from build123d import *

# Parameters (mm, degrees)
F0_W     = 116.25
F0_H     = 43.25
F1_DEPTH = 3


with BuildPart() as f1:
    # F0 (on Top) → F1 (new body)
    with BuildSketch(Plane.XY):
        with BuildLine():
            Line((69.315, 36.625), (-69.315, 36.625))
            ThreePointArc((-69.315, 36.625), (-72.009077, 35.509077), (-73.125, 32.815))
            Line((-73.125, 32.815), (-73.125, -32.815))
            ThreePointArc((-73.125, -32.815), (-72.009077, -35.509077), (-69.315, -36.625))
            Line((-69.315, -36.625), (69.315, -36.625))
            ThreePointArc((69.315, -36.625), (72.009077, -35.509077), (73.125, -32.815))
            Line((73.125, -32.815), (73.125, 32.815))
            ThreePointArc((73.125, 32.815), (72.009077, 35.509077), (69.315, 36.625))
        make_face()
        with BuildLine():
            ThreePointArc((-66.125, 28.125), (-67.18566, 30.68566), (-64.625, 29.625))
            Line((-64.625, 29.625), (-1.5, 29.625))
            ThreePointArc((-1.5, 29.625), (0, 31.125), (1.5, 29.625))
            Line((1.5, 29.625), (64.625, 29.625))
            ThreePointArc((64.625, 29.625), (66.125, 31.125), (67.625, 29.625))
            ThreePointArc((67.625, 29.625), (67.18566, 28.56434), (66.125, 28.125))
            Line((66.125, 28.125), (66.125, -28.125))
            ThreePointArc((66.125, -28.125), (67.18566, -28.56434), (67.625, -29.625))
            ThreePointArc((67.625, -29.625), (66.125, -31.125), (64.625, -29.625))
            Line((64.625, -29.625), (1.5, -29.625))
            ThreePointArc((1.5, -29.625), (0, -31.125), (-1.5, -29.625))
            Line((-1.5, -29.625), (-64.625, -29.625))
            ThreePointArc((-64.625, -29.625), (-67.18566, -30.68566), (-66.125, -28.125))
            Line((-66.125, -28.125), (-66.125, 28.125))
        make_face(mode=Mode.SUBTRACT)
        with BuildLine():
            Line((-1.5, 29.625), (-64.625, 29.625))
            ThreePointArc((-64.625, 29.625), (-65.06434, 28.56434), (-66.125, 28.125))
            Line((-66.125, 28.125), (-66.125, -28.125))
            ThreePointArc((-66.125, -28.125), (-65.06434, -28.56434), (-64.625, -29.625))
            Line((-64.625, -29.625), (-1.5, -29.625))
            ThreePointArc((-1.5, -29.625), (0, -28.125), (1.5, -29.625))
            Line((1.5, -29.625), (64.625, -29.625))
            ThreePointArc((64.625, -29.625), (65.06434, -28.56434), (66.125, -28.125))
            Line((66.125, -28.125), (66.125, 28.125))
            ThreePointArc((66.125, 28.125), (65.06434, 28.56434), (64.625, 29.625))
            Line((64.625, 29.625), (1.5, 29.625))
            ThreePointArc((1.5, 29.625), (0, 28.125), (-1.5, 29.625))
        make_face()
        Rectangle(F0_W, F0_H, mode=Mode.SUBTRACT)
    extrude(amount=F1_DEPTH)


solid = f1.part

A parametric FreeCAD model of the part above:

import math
import FreeCAD as App
import Part
import Sketcher
Q = App.Units.Quantity


def add_polygon(sketch, points):
    """Adds a closed chain of lines whose ends are joined by coincident constraints."""
    first, n = sketch.GeometryCount, len(points)
    for a, b in zip(points, points[1:] + points[:1]):
        sketch.addGeometry(Part.LineSegment(App.Vector(*a, 0), App.Vector(*b, 0)), False)
    for i in range(n):
        sketch.addConstraint(Sketcher.Constraint("Coincident", first + i, 2, first + (i + 1) % n, 1))

doc = App.newDocument("Part")
body = doc.addObject("PartDesign::Body", "Body")

# Sketch on XY plane
sketch1 = doc.addObject("Sketcher::SketchObject", "Sketch")
body.addObject(sketch1)
sketch1.AttachmentSupport = (doc.XY_Plane, [""])
sketch1.MapMode = "FlatFace"
sketch1.addGeometry(Part.LineSegment(App.Vector(69.3, 36.6, 0), App.Vector(-69.3, 36.6, 0)), False)  # 0
sketch1.addGeometry(Part.ArcOfCircle(Part.Circle(App.Vector(-69.3, 32.8, 0), App.Vector(0, 0, 1), 3.8), math.radians(90), math.radians(180)), False)  # 1
sketch1.addGeometry(Part.LineSegment(App.Vector(-73.1, 32.8, 0), App.Vector(-73.1, -32.8, 0)), False)  # 2
sketch1.addGeometry(Part.ArcOfCircle(Part.Circle(App.Vector(-69.3, -32.8, 0), App.Vector(0, 0, 1), 3.8), math.radians(180), math.radians(270)), False)  # 3
sketch1.addGeometry(Part.LineSegment(App.Vector(-69.3, -36.6, 0), App.Vector(69.3, -36.6, 0)), False)  # 4
sketch1.addGeometry(Part.ArcOfCircle(Part.Circle(App.Vector(69.3, -32.8, 0), App.Vector(0, 0, 1), 3.8), math.radians(-90), math.radians(0)), False)  # 5
sketch1.addGeometry(Part.LineSegment(App.Vector(73.1, -32.8, 0), App.Vector(73.1, 32.8, 0)), False)  # 6
sketch1.addGeometry(Part.ArcOfCircle(Part.Circle(App.Vector(69.3, 32.8, 0), App.Vector(0, 0, 1), 3.8), math.radians(0), math.radians(90)), False)  # 7
sketch1.addGeometry(Part.ArcOfCircle(Part.Circle(App.Vector(-66.1, -29.6, 0), App.Vector(0, 0, 1), 1.5), math.radians(90), math.radians(360)), False)  # 8
sketch1.addGeometry(Part.ArcOfCircle(Part.Circle(App.Vector(-66.1, -29.6, 0), App.Vector(0, 0, 1), 1.5), math.radians(0), math.radians(90)), False)  # 9
sketch1.addGeometry(Part.Circle(App.Vector(0, -29.6, 0), App.Vector(0, 0, 1), 1.5), False)  # 10
add_polygon(sketch1, [(58.1, -21.6), (-58.1, -21.6), (-58.1, 21.6), (58.1, 21.6)])  # lines 11-14
sketch1.addGeometry(Part.ArcOfCircle(Part.Circle(App.Vector(66.1, -29.6, 0), App.Vector(0, 0, 1), 1.5), math.radians(180), math.radians(360)), False)  # 15
sketch1.addGeometry(Part.ArcOfCircle(Part.Circle(App.Vector(66.1, -29.6, 0), App.Vector(0, 0, 1), 1.5), math.radians(90), math.radians(180)), False)  # 16
sketch1.addGeometry(Part.ArcOfCircle(Part.Circle(App.Vector(66.1, -29.6, 0), App.Vector(0, 0, 1), 1.5), math.radians(0), math.radians(90)), False)  # 17
sketch1.addGeometry(Part.ArcOfCircle(Part.Circle(App.Vector(-66.1, 29.6, 0), App.Vector(0, 0, 1), 1.5), math.radians(0), math.radians(270)), False)  # 18
sketch1.addGeometry(Part.ArcOfCircle(Part.Circle(App.Vector(-66.1, 29.6, 0), App.Vector(0, 0, 1), 1.5), math.radians(-90), math.radians(0)), False)  # 19
sketch1.addGeometry(Part.Circle(App.Vector(0, 29.6, 0), App.Vector(0, 0, 1), 1.5), False)  # 20
sketch1.addGeometry(Part.ArcOfCircle(Part.Circle(App.Vector(66.1, 29.6, 0), App.Vector(0, 0, 1), 1.5), math.radians(-90), math.radians(0)), False)  # 21
sketch1.addGeometry(Part.ArcOfCircle(Part.Circle(App.Vector(66.1, 29.6, 0), App.Vector(0, 0, 1), 1.5), math.radians(-180), math.radians(-90)), False)  # 22
sketch1.addGeometry(Part.ArcOfCircle(Part.Circle(App.Vector(66.1, 29.6, 0), App.Vector(0, 0, 1), 1.5), math.radians(0), math.radians(180)), False)  # 23
sketch1.addConstraint(Sketcher.Constraint("Tangent", 0, 2, 1, 1))
sketch1.addConstraint(Sketcher.Constraint("Tangent", 1, 2, 2, 1))
sketch1.addConstraint(Sketcher.Constraint("Tangent", 2, 2, 3, 1))
sketch1.addConstraint(Sketcher.Constraint("Tangent", 3, 2, 4, 1))
sketch1.addConstraint(Sketcher.Constraint("Tangent", 4, 2, 5, 1))
sketch1.addConstraint(Sketcher.Constraint("Tangent", 5, 2, 6, 1))
sketch1.addConstraint(Sketcher.Constraint("Tangent", 6, 2, 7, 1))
sketch1.addConstraint(Sketcher.Constraint("Tangent", 7, 2, 0, 1))
sketch1.addConstraint(Sketcher.Constraint("Tangent", 8, 1, 9, 2))
sketch1.addConstraint(Sketcher.Constraint("Coincident", 9, 1, 8, 2))
sketch1.addConstraint(Sketcher.Constraint("Tangent", 15, 1, 16, 2))
sketch1.addConstraint(Sketcher.Constraint("Tangent", 16, 1, 17, 2))
sketch1.addConstraint(Sketcher.Constraint("Tangent", 17, 1, 15, 2))
sketch1.addConstraint(Sketcher.Constraint("Tangent", 18, 1, 19, 2))
sketch1.addConstraint(Sketcher.Constraint("Coincident", 19, 1, 18, 2))
sketch1.addConstraint(Sketcher.Constraint("Tangent", 21, 1, 22, 2))
sketch1.addConstraint(Sketcher.Constraint("Tangent", 22, 1, 23, 2))
sketch1.addConstraint(Sketcher.Constraint("Tangent", 23, 1, 21, 2))
sketch1.addConstraint(Sketcher.Constraint("Horizontal", 0))
sketch1.addConstraint(Sketcher.Constraint("Vertical", 2))
sketch1.addConstraint(Sketcher.Constraint("Horizontal", 4))
sketch1.addConstraint(Sketcher.Constraint("Vertical", 6))
sketch1.addConstraint(Sketcher.Constraint("Horizontal", 11))
sketch1.addConstraint(Sketcher.Constraint("Vertical", 12))
sketch1.addConstraint(Sketcher.Constraint("Horizontal", 13))
sketch1.addConstraint(Sketcher.Constraint("Vertical", 14))
sketch1.addConstraint(Sketcher.Constraint("Equal", 1, 3))
sketch1.addConstraint(Sketcher.Constraint("Equal", 3, 5))
sketch1.addConstraint(Sketcher.Constraint("Equal", 5, 7))
sketch1.addConstraint(Sketcher.Constraint("Equal", 9, 10))
sketch1.addConstraint(Sketcher.Constraint("Equal", 10, 15))
sketch1.addConstraint(Sketcher.Constraint("Equal", 17, 18))
sketch1.addConstraint(Sketcher.Constraint("Equal", 19, 20))
sketch1.addConstraint(Sketcher.Constraint("Equal", 20, 21))
sketch1.addConstraint(Sketcher.Constraint("Symmetric", 1, 3, 5, 3, -1, 1))
sketch1.addConstraint(Sketcher.Constraint("Symmetric", 15, 3, 18, 3, -1, 1))
sketch1.addConstraint(Sketcher.Constraint("Symmetric", 10, 3, 20, 3, -1, 1))
sketch1.addConstraint(Sketcher.Constraint("Symmetric", 8, 3, 21, 3, -1, 1))
sketch1.addConstraint(Sketcher.Constraint("Symmetric", 11, 2, 13, 2, -1, 1))
sketch1.addConstraint(Sketcher.Constraint("Symmetric", 8, 3, 15, 3, -2))
sketch1.addConstraint(Sketcher.Constraint("PointOnObject", 10, 3, -2))
sketch1.addConstraint(Sketcher.Constraint("Horizontal", 9, 3, 10, 3))
sketch1.addConstraint(Sketcher.Constraint("Horizontal", 17, 3, 9, 1))
sketch1.addConstraint(Sketcher.Constraint("Horizontal", 9, 1, 15, 1))
sketch1.addConstraint(Sketcher.Constraint("Horizontal", 15, 1, 17, 1))
sketch1.addConstraint(Sketcher.Constraint("Horizontal", 23, 3, 18, 1))
sketch1.addConstraint(Sketcher.Constraint("Horizontal", 18, 1, 22, 1))
sketch1.addConstraint(Sketcher.Constraint("Horizontal", 22, 1, 23, 1))
sketch1.addConstraint(Sketcher.Constraint("Vertical", 19, 3, 8, 1))
sketch1.addConstraint(Sketcher.Constraint("Vertical", 23, 3, 16, 1))
sketch1.addConstraint(Sketcher.Constraint("Vertical", 8, 1, 19, 1))
sketch1.addConstraint(Sketcher.Constraint("Vertical", 16, 1, 21, 1))
sketch1.addConstraint(Sketcher.Constraint("Diameter", 10, Q("3 mm")))
sketch1.addConstraint(Sketcher.Constraint("Radius", 1, Q("3.809999 mm")))
sketch1.addConstraint(Sketcher.Constraint("DistanceY", 19, 3, 0, 2, Q("6.999999 mm")))
sketch1.addConstraint(Sketcher.Constraint("DistanceX", 1, 2, 19, 3, Q("6.999999 mm")))
sketch1.addConstraint(Sketcher.Constraint("DistanceX", 8, 1, 11, 2, Q("8 mm")))
sketch1.addConstraint(Sketcher.Constraint("DistanceY", 9, 1, 11, 2, Q("8 mm")))
sketch1.addConstraint(Sketcher.Constraint("DistanceX", 0, 2, 0, 1, Q("138.63 mm")))
sketch1.addConstraint(Sketcher.Constraint("DistanceY", 2, 2, 2, 1, Q("65.63 mm")))
pad1 = doc.addObject("PartDesign::Pad", "Pad")
body.addObject(pad1)
pad1.Profile = sketch1
pad1.Length = 3

doc.recompute()
